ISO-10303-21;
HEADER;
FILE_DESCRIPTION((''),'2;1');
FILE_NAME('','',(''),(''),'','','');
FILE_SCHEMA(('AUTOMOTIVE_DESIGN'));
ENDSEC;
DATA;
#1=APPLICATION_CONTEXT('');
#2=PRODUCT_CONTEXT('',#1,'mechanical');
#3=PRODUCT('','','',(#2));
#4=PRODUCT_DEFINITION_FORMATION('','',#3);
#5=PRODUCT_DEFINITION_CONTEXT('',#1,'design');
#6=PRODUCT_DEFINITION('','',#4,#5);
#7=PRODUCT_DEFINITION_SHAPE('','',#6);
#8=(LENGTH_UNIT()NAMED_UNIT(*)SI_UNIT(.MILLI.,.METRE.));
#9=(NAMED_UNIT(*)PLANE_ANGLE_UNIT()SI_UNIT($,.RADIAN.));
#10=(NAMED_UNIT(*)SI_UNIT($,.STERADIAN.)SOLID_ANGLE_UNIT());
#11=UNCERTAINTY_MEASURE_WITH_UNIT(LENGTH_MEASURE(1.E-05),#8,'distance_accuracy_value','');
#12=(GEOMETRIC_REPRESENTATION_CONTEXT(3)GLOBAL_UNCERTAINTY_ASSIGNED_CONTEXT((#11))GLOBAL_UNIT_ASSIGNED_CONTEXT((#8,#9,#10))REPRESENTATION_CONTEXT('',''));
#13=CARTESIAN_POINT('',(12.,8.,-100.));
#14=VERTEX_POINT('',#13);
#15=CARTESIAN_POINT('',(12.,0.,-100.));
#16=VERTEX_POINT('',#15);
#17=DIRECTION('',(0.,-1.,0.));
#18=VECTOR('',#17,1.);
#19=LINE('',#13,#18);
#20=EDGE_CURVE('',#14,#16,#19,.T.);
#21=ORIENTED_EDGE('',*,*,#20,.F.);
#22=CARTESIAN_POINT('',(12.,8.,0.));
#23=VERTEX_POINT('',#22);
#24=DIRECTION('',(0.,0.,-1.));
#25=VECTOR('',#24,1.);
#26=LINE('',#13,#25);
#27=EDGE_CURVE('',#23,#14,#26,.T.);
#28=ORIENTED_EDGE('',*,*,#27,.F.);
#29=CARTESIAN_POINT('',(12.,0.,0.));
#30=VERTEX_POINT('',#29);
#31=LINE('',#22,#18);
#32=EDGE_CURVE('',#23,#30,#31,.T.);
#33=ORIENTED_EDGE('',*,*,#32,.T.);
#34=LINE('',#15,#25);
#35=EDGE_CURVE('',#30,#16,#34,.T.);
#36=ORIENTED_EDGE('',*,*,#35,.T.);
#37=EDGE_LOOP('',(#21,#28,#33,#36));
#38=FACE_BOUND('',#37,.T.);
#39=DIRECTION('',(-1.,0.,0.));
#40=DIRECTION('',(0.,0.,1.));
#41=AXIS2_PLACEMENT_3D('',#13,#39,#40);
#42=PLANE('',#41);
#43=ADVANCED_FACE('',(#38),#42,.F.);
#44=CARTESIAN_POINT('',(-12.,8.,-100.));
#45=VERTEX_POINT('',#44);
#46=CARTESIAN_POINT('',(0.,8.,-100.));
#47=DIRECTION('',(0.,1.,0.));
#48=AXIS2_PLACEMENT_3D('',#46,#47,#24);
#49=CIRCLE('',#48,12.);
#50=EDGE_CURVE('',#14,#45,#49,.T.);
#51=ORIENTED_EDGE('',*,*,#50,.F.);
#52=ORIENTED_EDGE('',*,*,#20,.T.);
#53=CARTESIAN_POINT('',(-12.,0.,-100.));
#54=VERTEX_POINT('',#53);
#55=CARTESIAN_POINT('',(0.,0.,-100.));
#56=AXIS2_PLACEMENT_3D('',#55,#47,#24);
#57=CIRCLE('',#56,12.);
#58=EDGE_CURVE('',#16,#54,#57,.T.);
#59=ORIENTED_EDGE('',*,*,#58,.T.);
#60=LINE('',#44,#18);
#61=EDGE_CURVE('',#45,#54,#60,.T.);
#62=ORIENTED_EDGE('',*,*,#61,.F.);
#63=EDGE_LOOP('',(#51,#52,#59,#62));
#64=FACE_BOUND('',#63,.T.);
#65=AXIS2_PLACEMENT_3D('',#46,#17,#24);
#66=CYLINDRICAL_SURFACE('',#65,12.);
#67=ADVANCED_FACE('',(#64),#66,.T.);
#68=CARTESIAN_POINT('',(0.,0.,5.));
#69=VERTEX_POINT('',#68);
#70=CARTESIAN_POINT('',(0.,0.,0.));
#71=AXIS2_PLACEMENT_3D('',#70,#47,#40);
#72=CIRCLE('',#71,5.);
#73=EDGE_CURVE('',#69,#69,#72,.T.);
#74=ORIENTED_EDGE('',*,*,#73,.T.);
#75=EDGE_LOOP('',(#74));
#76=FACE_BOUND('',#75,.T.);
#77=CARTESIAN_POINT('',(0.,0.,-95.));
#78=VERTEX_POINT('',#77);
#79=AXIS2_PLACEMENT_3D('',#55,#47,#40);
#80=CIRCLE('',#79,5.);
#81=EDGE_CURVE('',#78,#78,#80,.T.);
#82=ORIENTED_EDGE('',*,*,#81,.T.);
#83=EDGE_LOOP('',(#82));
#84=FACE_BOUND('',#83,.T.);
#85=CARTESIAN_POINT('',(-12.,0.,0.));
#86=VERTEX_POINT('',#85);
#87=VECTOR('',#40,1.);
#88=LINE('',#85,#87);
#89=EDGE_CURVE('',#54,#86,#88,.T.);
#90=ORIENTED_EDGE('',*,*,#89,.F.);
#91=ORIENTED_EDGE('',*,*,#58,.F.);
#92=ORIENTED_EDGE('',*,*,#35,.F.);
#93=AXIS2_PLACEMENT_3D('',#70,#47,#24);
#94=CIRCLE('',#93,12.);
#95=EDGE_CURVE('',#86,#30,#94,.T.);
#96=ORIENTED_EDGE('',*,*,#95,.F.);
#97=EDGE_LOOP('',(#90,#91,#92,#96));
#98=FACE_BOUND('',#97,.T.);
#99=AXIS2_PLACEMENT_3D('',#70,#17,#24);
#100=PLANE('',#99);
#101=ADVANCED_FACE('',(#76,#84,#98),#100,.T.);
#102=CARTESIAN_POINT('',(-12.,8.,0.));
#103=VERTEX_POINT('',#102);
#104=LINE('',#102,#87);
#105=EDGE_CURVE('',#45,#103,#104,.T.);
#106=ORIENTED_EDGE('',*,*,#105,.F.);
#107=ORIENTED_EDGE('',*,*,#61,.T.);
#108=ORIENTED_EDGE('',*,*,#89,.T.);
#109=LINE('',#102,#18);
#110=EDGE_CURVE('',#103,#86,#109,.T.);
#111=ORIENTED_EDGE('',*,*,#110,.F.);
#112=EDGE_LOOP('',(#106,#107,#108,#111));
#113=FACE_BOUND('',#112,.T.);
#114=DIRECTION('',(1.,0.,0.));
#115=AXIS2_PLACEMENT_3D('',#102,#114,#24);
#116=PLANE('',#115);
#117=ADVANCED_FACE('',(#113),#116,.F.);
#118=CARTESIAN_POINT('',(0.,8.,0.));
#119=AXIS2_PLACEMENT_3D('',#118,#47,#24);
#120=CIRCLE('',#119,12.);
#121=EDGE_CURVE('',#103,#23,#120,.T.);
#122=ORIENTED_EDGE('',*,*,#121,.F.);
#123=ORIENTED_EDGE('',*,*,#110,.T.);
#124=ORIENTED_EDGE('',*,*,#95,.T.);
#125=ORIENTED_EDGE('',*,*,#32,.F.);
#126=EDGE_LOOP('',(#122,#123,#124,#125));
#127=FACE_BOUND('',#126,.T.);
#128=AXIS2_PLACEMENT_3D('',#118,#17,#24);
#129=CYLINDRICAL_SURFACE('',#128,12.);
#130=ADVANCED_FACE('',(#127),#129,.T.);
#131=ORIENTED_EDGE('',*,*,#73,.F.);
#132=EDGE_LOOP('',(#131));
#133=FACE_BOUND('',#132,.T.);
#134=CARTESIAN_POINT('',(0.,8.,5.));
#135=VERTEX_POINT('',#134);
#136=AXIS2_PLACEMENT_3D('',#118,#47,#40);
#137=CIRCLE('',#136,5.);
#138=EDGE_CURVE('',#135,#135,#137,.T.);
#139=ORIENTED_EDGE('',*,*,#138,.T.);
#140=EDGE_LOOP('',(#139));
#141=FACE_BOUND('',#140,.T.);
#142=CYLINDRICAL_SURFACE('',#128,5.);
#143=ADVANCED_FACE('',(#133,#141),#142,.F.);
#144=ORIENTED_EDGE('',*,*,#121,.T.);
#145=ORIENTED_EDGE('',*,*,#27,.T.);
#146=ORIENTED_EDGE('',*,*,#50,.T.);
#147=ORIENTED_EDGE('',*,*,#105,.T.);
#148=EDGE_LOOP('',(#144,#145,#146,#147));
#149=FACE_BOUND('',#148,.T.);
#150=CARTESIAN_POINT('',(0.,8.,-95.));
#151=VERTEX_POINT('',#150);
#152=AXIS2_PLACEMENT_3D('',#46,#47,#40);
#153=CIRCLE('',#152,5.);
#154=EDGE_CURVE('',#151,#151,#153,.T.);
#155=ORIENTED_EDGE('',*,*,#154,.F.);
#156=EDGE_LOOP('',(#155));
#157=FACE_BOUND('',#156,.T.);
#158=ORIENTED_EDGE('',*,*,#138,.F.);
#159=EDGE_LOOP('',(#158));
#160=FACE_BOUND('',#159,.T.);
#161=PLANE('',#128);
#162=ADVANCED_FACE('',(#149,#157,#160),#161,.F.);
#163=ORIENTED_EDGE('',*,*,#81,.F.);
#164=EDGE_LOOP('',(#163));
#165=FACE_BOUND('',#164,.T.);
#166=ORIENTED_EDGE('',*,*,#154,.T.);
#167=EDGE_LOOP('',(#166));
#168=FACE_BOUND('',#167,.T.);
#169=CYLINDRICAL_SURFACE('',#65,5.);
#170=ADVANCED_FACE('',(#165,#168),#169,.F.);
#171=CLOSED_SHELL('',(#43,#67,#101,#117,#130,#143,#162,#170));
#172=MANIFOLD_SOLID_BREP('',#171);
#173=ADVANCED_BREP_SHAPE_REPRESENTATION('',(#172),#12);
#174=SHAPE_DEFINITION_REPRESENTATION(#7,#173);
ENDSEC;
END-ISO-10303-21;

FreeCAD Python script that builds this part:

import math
import FreeCAD as App
import Part
import Sketcher
from FreeCAD import Vector
Q = App.Units.Quantity

doc = App.newDocument("Part")
body = doc.addObject("PartDesign::Body", "Body")

# Sketch on XZ plane
sketch1 = body.newObject("Sketcher::SketchObject", "Sketch")
sketch1.AttachmentSupport = (doc.getObject("XZ_Plane"), [""])
sketch1.MapMode = "FlatFace"
sketch1.addGeometry(Part.LineSegment(Vector(-12, -100, 0), Vector(-12, 0, 0)), False)
sketch1.addGeometry(Part.ArcOfCircle(Part.Circle(Vector(0, 0, 0), Vector(0, 0, 1), 12), math.radians(0), math.radians(180)), False)
sketch1.addGeometry(Part.LineSegment(Vector(12, 0, 0), Vector(12, -100, 0)), False)
sketch1.addGeometry(Part.ArcOfCircle(Part.Circle(Vector(0, -100, 0), Vector(0, 0, 1), 12), math.radians(180), math.radians(360)), False)
sketch1.addGeometry(Part.Circle(Vector(0, 0, 0), Vector(0, 0, 1), 5), False)
sketch1.addGeometry(Part.Circle(Vector(0, -100, 0), Vector(0, 0, 1), 5), False)
sketch1.addConstraint(Sketcher.Constraint("Tangent", 0, 2, 1, 2))
sketch1.addConstraint(Sketcher.Constraint("Tangent", 1, 1, 2, 1))
sketch1.addConstraint(Sketcher.Constraint("Tangent", 2, 2, 3, 2))
sketch1.addConstraint(Sketcher.Constraint("Tangent", 3, 1, 0, 1))
sketch1.addConstraint(Sketcher.Constraint("Vertical", 0))
sketch1.addConstraint(Sketcher.Constraint("Vertical", 2))
sketch1.addConstraint(Sketcher.Constraint("Coincident", 1, 3, -1, 1))
sketch1.addConstraint(Sketcher.Constraint("Coincident", 4, 3, -1, 1))
sketch1.addConstraint(Sketcher.Constraint("Coincident", 5, 3, 3, 3))
sketch1.addConstraint(Sketcher.Constraint("Equal", 4, 5))
sketch1.addConstraint(Sketcher.Constraint("Diameter", 4, Q("10 mm")))
sketch1.addConstraint(Sketcher.Constraint("Radius", 1, Q("12 mm")))
sketch1.addConstraint(Sketcher.Constraint("DistanceY", 0, 1, 0, 2, Q("100 mm")))
pad1 = body.newObject("PartDesign::Pad", "Pad")
pad1.Profile = sketch1
pad1.Length = 8
pad1.Reversed = True

doc.recompute()
